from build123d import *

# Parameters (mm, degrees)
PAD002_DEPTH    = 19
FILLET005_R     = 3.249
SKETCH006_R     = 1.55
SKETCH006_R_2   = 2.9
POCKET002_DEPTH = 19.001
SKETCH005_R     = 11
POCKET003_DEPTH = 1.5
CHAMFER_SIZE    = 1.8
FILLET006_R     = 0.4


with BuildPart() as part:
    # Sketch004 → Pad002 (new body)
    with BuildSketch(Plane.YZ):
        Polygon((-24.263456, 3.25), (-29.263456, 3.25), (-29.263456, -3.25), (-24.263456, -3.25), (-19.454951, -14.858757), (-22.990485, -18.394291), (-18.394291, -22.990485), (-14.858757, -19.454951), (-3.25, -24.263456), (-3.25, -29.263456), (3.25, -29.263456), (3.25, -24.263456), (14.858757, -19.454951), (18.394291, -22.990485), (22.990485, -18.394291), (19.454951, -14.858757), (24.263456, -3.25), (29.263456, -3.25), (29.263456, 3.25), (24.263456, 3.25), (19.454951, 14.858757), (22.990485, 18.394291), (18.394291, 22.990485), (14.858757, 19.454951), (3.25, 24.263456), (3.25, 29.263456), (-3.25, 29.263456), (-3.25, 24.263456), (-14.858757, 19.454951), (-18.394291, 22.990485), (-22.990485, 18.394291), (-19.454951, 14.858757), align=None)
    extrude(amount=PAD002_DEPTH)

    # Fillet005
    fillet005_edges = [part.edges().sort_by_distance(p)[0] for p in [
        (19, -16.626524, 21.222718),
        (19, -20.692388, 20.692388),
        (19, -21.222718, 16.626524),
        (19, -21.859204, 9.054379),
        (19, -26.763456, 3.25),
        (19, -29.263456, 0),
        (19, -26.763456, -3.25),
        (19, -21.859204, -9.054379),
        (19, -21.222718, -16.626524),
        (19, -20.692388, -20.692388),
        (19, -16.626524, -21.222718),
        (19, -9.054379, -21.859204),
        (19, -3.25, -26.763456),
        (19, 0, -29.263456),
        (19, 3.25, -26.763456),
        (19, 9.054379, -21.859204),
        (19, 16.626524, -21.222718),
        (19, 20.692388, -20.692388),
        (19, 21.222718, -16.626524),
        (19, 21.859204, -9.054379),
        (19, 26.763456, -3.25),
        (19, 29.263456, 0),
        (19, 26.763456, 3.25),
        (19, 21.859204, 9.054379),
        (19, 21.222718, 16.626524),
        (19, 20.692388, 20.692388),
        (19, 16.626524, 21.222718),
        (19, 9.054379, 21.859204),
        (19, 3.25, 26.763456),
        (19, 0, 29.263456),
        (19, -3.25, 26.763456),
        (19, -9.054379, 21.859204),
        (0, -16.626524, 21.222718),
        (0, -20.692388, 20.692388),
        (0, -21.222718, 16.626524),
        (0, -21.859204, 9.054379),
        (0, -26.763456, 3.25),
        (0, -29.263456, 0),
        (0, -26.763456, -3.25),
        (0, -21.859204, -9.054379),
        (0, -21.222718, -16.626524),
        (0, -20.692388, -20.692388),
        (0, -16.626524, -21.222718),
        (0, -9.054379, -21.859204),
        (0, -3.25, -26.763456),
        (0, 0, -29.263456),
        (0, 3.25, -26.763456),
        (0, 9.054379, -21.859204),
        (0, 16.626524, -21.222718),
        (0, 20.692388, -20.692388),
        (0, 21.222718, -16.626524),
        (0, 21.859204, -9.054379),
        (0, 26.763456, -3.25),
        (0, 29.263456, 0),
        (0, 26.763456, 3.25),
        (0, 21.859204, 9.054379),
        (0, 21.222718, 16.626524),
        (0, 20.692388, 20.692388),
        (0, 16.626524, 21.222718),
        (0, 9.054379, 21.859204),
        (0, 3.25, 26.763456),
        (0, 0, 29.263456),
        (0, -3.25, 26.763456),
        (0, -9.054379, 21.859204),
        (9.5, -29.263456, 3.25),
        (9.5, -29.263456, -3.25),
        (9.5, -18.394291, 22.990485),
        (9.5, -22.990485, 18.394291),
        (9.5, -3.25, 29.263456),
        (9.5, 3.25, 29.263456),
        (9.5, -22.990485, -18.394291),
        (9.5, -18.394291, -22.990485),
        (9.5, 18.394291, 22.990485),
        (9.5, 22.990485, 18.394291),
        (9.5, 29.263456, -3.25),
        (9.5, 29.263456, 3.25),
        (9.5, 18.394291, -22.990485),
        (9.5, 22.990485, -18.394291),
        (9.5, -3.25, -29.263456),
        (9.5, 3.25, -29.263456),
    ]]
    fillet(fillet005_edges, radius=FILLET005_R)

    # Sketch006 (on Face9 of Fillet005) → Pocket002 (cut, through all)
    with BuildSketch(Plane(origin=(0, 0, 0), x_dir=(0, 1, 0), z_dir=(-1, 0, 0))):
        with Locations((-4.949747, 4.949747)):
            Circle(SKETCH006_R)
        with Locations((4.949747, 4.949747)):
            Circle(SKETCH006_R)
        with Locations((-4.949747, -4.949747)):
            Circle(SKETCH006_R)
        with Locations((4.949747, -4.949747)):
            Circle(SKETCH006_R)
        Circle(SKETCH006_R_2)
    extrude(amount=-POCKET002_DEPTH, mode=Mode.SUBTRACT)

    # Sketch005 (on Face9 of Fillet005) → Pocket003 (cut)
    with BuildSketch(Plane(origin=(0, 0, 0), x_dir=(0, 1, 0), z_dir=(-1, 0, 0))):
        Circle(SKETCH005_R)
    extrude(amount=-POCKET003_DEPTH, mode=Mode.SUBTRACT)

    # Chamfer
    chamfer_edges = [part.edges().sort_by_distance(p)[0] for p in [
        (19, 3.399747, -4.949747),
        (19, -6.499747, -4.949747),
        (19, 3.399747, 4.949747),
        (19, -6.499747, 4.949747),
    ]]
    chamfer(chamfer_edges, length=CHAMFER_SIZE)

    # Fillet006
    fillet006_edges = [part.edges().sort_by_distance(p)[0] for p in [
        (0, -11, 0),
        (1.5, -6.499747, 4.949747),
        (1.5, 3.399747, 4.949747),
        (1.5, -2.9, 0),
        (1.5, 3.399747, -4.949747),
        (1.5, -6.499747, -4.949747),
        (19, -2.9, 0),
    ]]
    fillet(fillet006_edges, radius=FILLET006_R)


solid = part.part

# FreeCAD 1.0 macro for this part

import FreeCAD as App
import Part
import Sketcher

V = App.Vector
Q = App.Units.Quantity


def edges_at(feature, points):
    """Names of the edges that pass closest to the given points."""
    edges = feature.Shape.Edges
    near = lambda p: min(range(len(edges)), key=lambda i: edges[i].distToShape(Part.Vertex(*p))[0])
    return sorted({f"Edge{near(p) + 1}" for p in points})

doc = App.newDocument("Part")
params = doc.addObject("Spreadsheet::Sheet", "Params")
for row, (alias, value) in enumerate([
    ("sketch1_width", "5 mm"),
    ("sketch1_length", "5 mm"),
    ("sketch1_width2", "6.5 mm"),
    ("sketch1_length2", "6.5 mm"),
    ("pad1_length", "19 mm"),
    ("fillet_radius", "3.249 mm"),
    ("sketch2_diameter", "3.1 mm"),
    ("sketch2_diameter2", "5.8 mm"),
    ("sketch3_diameter", "22 mm"),
    ("pocket2_length", "1.5 mm"),
    ("chamfer_size", "1.8 mm"),
    ("fillet2_radius", "0.4 mm"),
], start=1):
    params.set(f"A{row}", alias)
    params.set(f"B{row}", "=" + value)
    params.setAlias(f"B{row}", alias)

body = doc.addObject("PartDesign::Body", "Body")

# Sketch on YZ plane
sketch1 = body.newObject("Sketcher::SketchObject", "Sketch")
sketch1.AttachmentSupport = (doc.getObject("YZ_Plane"), [""])
sketch1.MapMode = "FlatFace"
sketch1.addGeometry([
    Part.LineSegment(V(-24.263456, 3.25, 0), V(-29.263456, 3.25, 0)),  # 0
    Part.LineSegment(V(-29.263456, 3.25, 0), V(-29.263456, -3.25, 0)),  # 1
    Part.LineSegment(V(-29.263456, -3.25, 0), V(-24.263456, -3.25, 0)),  # 2
    Part.LineSegment(V(-24.263456, -3.25, 0), V(-19.454951, -14.858757, 0)),  # 3
    Part.LineSegment(V(-19.454951, -14.858757, 0), V(-22.990485, -18.394291, 0)),  # 4
    Part.LineSegment(V(-22.990485, -18.394291, 0), V(-18.394291, -22.990485, 0)),  # 5
    Part.LineSegment(V(-18.394291, -22.990485, 0), V(-14.858757, -19.454951, 0)),  # 6
    Part.LineSegment(V(-14.858757, -19.454951, 0), V(-3.25, -24.263456, 0)),  # 7
    Part.LineSegment(V(-3.25, -24.263456, 0), V(-3.25, -29.263456, 0)),  # 8
    Part.LineSegment(V(-3.25, -29.263456, 0), V(3.25, -29.263456, 0)),  # 9
    Part.LineSegment(V(3.25, -29.263456, 0), V(3.25, -24.263456, 0)),  # 10
    Part.LineSegment(V(3.25, -24.263456, 0), V(14.858757, -19.454951, 0)),  # 11
    Part.LineSegment(V(14.858757, -19.454951, 0), V(18.394291, -22.990485, 0)),  # 12
    Part.LineSegment(V(18.394291, -22.990485, 0), V(22.990485, -18.394291, 0)),  # 13
    Part.LineSegment(V(22.990485, -18.394291, 0), V(19.454951, -14.858757, 0)),  # 14
    Part.LineSegment(V(19.454951, -14.858757, 0), V(24.263456, -3.25, 0)),  # 15
    Part.LineSegment(V(24.263456, -3.25, 0), V(29.263456, -3.25, 0)),  # 16
    Part.LineSegment(V(29.263456, -3.25, 0), V(29.263456, 3.25, 0)),  # 17
    Part.LineSegment(V(29.263456, 3.25, 0), V(24.263456, 3.25, 0)),  # 18
    Part.LineSegment(V(24.263456, 3.25, 0), V(19.454951, 14.858757, 0)),  # 19
    Part.LineSegment(V(19.454951, 14.858757, 0), V(22.990485, 18.394291, 0)),  # 20
    Part.LineSegment(V(22.990485, 18.394291, 0), V(18.394291, 22.990485, 0)),  # 21
    Part.LineSegment(V(18.394291, 22.990485, 0), V(14.858757, 19.454951, 0)),  # 22
    Part.LineSegment(V(14.858757, 19.454951, 0), V(3.25, 24.263456, 0)),  # 23
    Part.LineSegment(V(3.25, 24.263456, 0), V(3.25, 29.263456, 0)),  # 24
    Part.LineSegment(V(3.25, 29.263456, 0), V(-3.25, 29.263456, 0)),  # 25
    Part.LineSegment(V(-3.25, 29.263456, 0), V(-3.25, 24.263456, 0)),  # 26
    Part.LineSegment(V(-3.25, 24.263456, 0), V(-14.858757, 19.454951, 0)),  # 27
    Part.LineSegment(V(-14.858757, 19.454951, 0), V(-18.394291, 22.990485, 0)),  # 28
    Part.LineSegment(V(-18.394291, 22.990485, 0), V(-22.990485, 18.394291, 0)),  # 29
    Part.LineSegment(V(-22.990485, 18.394291, 0), V(-19.454951, 14.858757, 0)),  # 30
    Part.LineSegment(V(-19.454951, 14.858757, 0), V(-24.263456, 3.25, 0)),  # 31
], False)
sketch1.addConstraint([
    Sketcher.Constraint("Coincident", 0, 2, 1, 1),
    Sketcher.Constraint("Coincident", 1, 2, 2, 1),
    Sketcher.Constraint("Coincident", 2, 2, 3, 1),
    Sketcher.Constraint("Coincident", 3, 2, 4, 1),
    Sketcher.Constraint("Coincident", 4, 2, 5, 1),
    Sketcher.Constraint("Coincident", 5, 2, 6, 1),
    Sketcher.Constraint("Coincident", 6, 2, 7, 1),
    Sketcher.Constraint("Coincident", 7, 2, 8, 1),
    Sketcher.Constraint("Coincident", 8, 2, 9, 1),
    Sketcher.Constraint("Coincident", 9, 2, 10, 1),
    Sketcher.Constraint("Coincident", 10, 2, 11, 1),
    Sketcher.Constraint("Coincident", 11, 2, 12, 1),
    Sketcher.Constraint("Coincident", 12, 2, 13, 1),
    Sketcher.Constraint("Coincident", 13, 2, 14, 1),
    Sketcher.Constraint("Coincident", 14, 2, 15, 1),
    Sketcher.Constraint("Coincident", 15, 2, 16, 1),
    Sketcher.Constraint("Coincident", 16, 2, 17, 1),
    Sketcher.Constraint("Coincident", 17, 2, 18, 1),
    Sketcher.Constraint("Coincident", 18, 2, 19, 1),
    Sketcher.Constraint("Coincident", 19, 2, 20, 1),
    Sketcher.Constraint("Coincident", 20, 2, 21, 1),
    Sketcher.Constraint("Coincident", 21, 2, 22, 1),
    Sketcher.Constraint("Coincident", 22, 2, 23, 1),
    Sketcher.Constraint("Coincident", 23, 2, 24, 1),
    Sketcher.Constraint("Coincident", 24, 2, 25, 1),
    Sketcher.Constraint("Coincident", 25, 2, 26, 1),
    Sketcher.Constraint("Coincident", 26, 2, 27, 1),
    Sketcher.Constraint("Coincident", 27, 2, 28, 1),
    Sketcher.Constraint("Coincident", 28, 2, 29, 1),
    Sketcher.Constraint("Coincident", 29, 2, 30, 1),
    Sketcher.Constraint("Coincident", 30, 2, 31, 1),
    Sketcher.Constraint("Coincident", 31, 2, 0, 1),
    Sketcher.Constraint("Horizontal", 0),
    Sketcher.Constraint("Vertical", 1),
    Sketcher.Constraint("Horizontal", 2),
    Sketcher.Constraint("Vertical", 8),
    Sketcher.Constraint("Horizontal", 9),
    Sketcher.Constraint("Vertical", 10),
    Sketcher.Constraint("Horizontal", 16),
    Sketcher.Constraint("Vertical", 17),
    Sketcher.Constraint("Horizontal", 18),
    Sketcher.Constraint("Vertical", 24),
    Sketcher.Constraint("Horizontal", 25),
    Sketcher.Constraint("Vertical", 26),
    Sketcher.Constraint("Symmetric", 0, 2, 16, 2, -1, 1),
    Sketcher.Constraint("Symmetric", 2, 2, 18, 2, -1, 1),
    Sketcher.Constraint("Symmetric", 3, 2, 19, 2, -1, 1),
    Sketcher.Constraint("Symmetric", 4, 2, 20, 2, -1, 1),
    Sketcher.Constraint("Symmetric", 5, 2, 21, 2, -1, 1),
    Sketcher.Constraint("Symmetric", 6, 2, 22, 2, -1, 1),
    Sketcher.Constraint("Symmetric", 7, 2, 23, 2, -1, 1),
    Sketcher.Constraint("Symmetric", 9, 2, 25, 2, -1, 1),
    Sketcher.Constraint("Symmetric", 11, 2, 27, 2, -1, 1),
    Sketcher.Constraint("Symmetric", 12, 2, 28, 2, -1, 1),
    Sketcher.Constraint("Symmetric", 13, 2, 29, 2, -1, 1),
    Sketcher.Constraint("Symmetric", 14, 2, 30, 2, -1, 1),
    Sketcher.Constraint("Symmetric", 7, 2, 10, 2, -2),
    Sketcher.Constraint("Symmetric", 6, 2, 11, 2, -2),
    Sketcher.Constraint("Symmetric", 5, 2, 12, 2, -2),
    Sketcher.Constraint("Symmetric", 4, 2, 13, 2, -2),
    Sketcher.Constraint("Symmetric", 3, 2, 14, 2, -2),
    Sketcher.Constraint("Symmetric", 2, 2, 15, 2, -2),
    Sketcher.Constraint("Perpendicular", 4, 5),
    Sketcher.Constraint("Perpendicular", 5, 6),
    Sketcher.Constraint("Perpendicular", 3, 11),
    Sketcher.Constraint("Perpendicular", 6, 12),
    Sketcher.Constraint("Perpendicular", 19, 27),
    Sketcher.Constraint("Perpendicular", 23, 31),
    Sketcher.Constraint("Equal", 25, 1),
    Sketcher.Constraint("Equal", 18, 8),
    Sketcher.Constraint("Equal", 4, 6),
    Sketcher.Constraint("Equal", 3, 7),
    Sketcher.Constraint("DistanceX", 0, 2, 0, 1, 5.0),
    Sketcher.Constraint("Distance", 4, 5.0),
    Sketcher.Constraint("DistanceX", 9, 1, 9, 2, 6.5),
    Sketcher.Constraint("Angle", 3, Q("-67.499998 deg")),
    Sketcher.Constraint("Distance", 5, 6.5),
    Sketcher.Constraint("DistanceX", 2, 2, 6, 2, 9.404699),
])
sketch1.setExpression("Constraints[72]", "Params.sketch1_width")
sketch1.setExpression("Constraints[73]", "Params.sketch1_length")
sketch1.setExpression("Constraints[74]", "Params.sketch1_width2")
sketch1.setExpression("Constraints[76]", "Params.sketch1_length2")
pad1 = body.newObject("PartDesign::Pad", "Pad")
pad1.Profile = sketch1
pad1.setExpression("Length", "Params.pad1_length")
doc.recompute()

fillet = body.newObject("PartDesign::Fillet", "Fillet")
fillet.Base = (pad1, edges_at(pad1, [
    (19, -16.627, 21.223),
    (19, -20.692, 20.692),
    (19, -21.223, 16.627),
    (19, -21.859, 9.054),
    (19, -26.763, 3.25),
    (19, -29.263, 0),
    (19, -26.763, -3.25),
    (19, -21.859, -9.054),
    (19, -21.223, -16.627),
    (19, -20.692, -20.692),
    (19, -16.627, -21.223),
    (19, -9.054, -21.859),
    (19, -3.25, -26.763),
    (19, 0, -29.263),
    (19, 3.25, -26.763),
    (19, 9.054, -21.859),
    (19, 16.627, -21.223),
    (19, 20.692, -20.692),
    (19, 21.223, -16.627),
    (19, 21.859, -9.054),
    (19, 26.763, -3.25),
    (19, 29.263, 0),
    (19, 26.763, 3.25),
    (19, 21.859, 9.054),
    (19, 21.223, 16.627),
    (19, 20.692, 20.692),
    (19, 16.627, 21.223),
    (19, 9.054, 21.859),
    (19, 3.25, 26.763),
    (19, 0, 29.263),
    (19, -3.25, 26.763),
    (19, -9.054, 21.859),
    (0, -16.627, 21.223),
    (0, -20.692, 20.692),
    (0, -21.223, 16.627),
    (0, -21.859, 9.054),
    (0, -26.763, 3.25),
    (0, -29.263, 0),
    (0, -26.763, -3.25),
    (0, -21.859, -9.054),
    (0, -21.223, -16.627),
    (0, -20.692, -20.692),
    (0, -16.627, -21.223),
    (0, -9.054, -21.859),
    (0, -3.25, -26.763),
    (0, 0, -29.263),
    (0, 3.25, -26.763),
    (0, 9.054, -21.859),
    (0, 16.627, -21.223),
    (0, 20.692, -20.692),
    (0, 21.223, -16.627),
    (0, 21.859, -9.054),
    (0, 26.763, -3.25),
    (0, 29.263, 0),
    (0, 26.763, 3.25),
    (0, 21.859, 9.054),
    (0, 21.223, 16.627),
    (0, 20.692, 20.692),
    (0, 16.627, 21.223),
    (0, 9.054, 21.859),
    (0, 3.25, 26.763),
    (0, 0, 29.263),
    (0, -3.25, 26.763),
    (0, -9.054, 21.859),
    (9.5, -29.263, 3.25),
    (9.5, -29.263, -3.25),
    (9.5, -18.394, 22.99),
    (9.5, -22.99, 18.394),
    (9.5, -3.25, 29.263),
    (9.5, 3.25, 29.263),
    (9.5, -22.99, -18.394),
    (9.5, -18.394, -22.99),
    (9.5, 18.394, 22.99),
    (9.5, 22.99, 18.394),
    (9.5, 29.263, -3.25),
    (9.5, 29.263, 3.25),
    (9.5, 18.394, -22.99),
    (9.5, 22.99, -18.394),
    (9.5, -3.25, -29.263),
    (9.5, 3.25, -29.263),
]))
fillet.setExpression("Radius", "Params.fillet_radius")

# Sketch on YZ plane
sketch2 = body.newObject("Sketcher::SketchObject", "Sketch001")
sketch2.AttachmentSupport = (doc.getObject("YZ_Plane"), [""])
sketch2.MapMode = "FlatFace"
sketch2.addGeometry([
    Part.Circle(V(-4.949747, -4.949747, 0), V(0, 0, 1), 1.55),  # 0
    Part.Circle(V(4.949747, -4.949747, 0), V(0, 0, 1), 1.55),  # 1
    Part.Circle(V(-4.949747, 4.949747, 0), V(0, 0, 1), 1.55),  # 2
    Part.Circle(V(4.949747, 4.949747, 0), V(0, 0, 1), 1.55),  # 3
    Part.Circle(V(0, 0, 0), V(0, 0, 1), 2.9),  # 4
], False)
sketch2.addConstraint([
    Sketcher.Constraint("Coincident", 4, 3, -1, 1),
    Sketcher.Constraint("Equal", 0, 1),
    Sketcher.Constraint("Equal", 1, 2),
    Sketcher.Constraint("Equal", 2, 3),
    Sketcher.Constraint("Symmetric", 1, 3, 2, 3, -1, 1),
    Sketcher.Constraint("Symmetric", 0, 3, 3, 3, -1, 1),
    Sketcher.Constraint("Symmetric", 0, 3, 1, 3, -2),
    Sketcher.Constraint("Diameter", 0, 3.1),
    Sketcher.Constraint("Diameter", 4, 5.8),
    Sketcher.Constraint("DistanceX", 0, 3, -1, 1, 4.949747),
    Sketcher.Constraint("DistanceY", 0, 3, -1, 1, 4.949747),
])
sketch2.setExpression("Constraints[7]", "Params.sketch2_diameter")
sketch2.setExpression("Constraints[8]", "Params.sketch2_diameter2")
pocket1 = body.newObject("PartDesign::Pocket", "Pocket")
pocket1.Profile = sketch2
pocket1.Type = "ThroughAll"
pocket1.Reversed = True

# Sketch on YZ plane
sketch3 = body.newObject("Sketcher::SketchObject", "Sketch002")
sketch3.AttachmentSupport = (doc.getObject("YZ_Plane"), [""])
sketch3.MapMode = "FlatFace"
sketch3.addGeometry(Part.Circle(V(0, 0, 0), V(0, 0, 1), 11), False)
sketch3.addConstraint([
    Sketcher.Constraint("Coincident", 0, 3, -1, 1),
    Sketcher.Constraint("Diameter", 0, 22.0),
])
sketch3.setExpression("Constraints[1]", "Params.sketch3_diameter")
pocket2 = body.newObject("PartDesign::Pocket", "Pocket001")
pocket2.Profile = sketch3
pocket2.setExpression("Length", "Params.pocket2_length")
pocket2.Reversed = True
doc.recompute()

chamfer = body.newObject("PartDesign::Chamfer", "Chamfer")
chamfer.Base = (pocket2, edges_at(pocket2, [
    (19, 3.4, -4.95),
    (19, -6.5, -4.95),
    (19, 3.4, 4.95),
    (19, -6.5, 4.95),
]))
chamfer.setExpression("Size", "Params.chamfer_size")
doc.recompute()

fillet2 = body.newObject("PartDesign::Fillet", "Fillet001")
fillet2.Base = (chamfer, edges_at(chamfer, [
    (0, -11, 0),
    (1.5, -6.5, 4.95),
    (1.5, 3.4, 4.95),
    (1.5, -2.9, 0),
    (1.5, 3.4, -4.95),
    (1.5, -6.5, -4.95),
    (19, -2.9, 0),
]))
fillet2.setExpression("Radius", "Params.fillet2_radius")

doc.recompute()
